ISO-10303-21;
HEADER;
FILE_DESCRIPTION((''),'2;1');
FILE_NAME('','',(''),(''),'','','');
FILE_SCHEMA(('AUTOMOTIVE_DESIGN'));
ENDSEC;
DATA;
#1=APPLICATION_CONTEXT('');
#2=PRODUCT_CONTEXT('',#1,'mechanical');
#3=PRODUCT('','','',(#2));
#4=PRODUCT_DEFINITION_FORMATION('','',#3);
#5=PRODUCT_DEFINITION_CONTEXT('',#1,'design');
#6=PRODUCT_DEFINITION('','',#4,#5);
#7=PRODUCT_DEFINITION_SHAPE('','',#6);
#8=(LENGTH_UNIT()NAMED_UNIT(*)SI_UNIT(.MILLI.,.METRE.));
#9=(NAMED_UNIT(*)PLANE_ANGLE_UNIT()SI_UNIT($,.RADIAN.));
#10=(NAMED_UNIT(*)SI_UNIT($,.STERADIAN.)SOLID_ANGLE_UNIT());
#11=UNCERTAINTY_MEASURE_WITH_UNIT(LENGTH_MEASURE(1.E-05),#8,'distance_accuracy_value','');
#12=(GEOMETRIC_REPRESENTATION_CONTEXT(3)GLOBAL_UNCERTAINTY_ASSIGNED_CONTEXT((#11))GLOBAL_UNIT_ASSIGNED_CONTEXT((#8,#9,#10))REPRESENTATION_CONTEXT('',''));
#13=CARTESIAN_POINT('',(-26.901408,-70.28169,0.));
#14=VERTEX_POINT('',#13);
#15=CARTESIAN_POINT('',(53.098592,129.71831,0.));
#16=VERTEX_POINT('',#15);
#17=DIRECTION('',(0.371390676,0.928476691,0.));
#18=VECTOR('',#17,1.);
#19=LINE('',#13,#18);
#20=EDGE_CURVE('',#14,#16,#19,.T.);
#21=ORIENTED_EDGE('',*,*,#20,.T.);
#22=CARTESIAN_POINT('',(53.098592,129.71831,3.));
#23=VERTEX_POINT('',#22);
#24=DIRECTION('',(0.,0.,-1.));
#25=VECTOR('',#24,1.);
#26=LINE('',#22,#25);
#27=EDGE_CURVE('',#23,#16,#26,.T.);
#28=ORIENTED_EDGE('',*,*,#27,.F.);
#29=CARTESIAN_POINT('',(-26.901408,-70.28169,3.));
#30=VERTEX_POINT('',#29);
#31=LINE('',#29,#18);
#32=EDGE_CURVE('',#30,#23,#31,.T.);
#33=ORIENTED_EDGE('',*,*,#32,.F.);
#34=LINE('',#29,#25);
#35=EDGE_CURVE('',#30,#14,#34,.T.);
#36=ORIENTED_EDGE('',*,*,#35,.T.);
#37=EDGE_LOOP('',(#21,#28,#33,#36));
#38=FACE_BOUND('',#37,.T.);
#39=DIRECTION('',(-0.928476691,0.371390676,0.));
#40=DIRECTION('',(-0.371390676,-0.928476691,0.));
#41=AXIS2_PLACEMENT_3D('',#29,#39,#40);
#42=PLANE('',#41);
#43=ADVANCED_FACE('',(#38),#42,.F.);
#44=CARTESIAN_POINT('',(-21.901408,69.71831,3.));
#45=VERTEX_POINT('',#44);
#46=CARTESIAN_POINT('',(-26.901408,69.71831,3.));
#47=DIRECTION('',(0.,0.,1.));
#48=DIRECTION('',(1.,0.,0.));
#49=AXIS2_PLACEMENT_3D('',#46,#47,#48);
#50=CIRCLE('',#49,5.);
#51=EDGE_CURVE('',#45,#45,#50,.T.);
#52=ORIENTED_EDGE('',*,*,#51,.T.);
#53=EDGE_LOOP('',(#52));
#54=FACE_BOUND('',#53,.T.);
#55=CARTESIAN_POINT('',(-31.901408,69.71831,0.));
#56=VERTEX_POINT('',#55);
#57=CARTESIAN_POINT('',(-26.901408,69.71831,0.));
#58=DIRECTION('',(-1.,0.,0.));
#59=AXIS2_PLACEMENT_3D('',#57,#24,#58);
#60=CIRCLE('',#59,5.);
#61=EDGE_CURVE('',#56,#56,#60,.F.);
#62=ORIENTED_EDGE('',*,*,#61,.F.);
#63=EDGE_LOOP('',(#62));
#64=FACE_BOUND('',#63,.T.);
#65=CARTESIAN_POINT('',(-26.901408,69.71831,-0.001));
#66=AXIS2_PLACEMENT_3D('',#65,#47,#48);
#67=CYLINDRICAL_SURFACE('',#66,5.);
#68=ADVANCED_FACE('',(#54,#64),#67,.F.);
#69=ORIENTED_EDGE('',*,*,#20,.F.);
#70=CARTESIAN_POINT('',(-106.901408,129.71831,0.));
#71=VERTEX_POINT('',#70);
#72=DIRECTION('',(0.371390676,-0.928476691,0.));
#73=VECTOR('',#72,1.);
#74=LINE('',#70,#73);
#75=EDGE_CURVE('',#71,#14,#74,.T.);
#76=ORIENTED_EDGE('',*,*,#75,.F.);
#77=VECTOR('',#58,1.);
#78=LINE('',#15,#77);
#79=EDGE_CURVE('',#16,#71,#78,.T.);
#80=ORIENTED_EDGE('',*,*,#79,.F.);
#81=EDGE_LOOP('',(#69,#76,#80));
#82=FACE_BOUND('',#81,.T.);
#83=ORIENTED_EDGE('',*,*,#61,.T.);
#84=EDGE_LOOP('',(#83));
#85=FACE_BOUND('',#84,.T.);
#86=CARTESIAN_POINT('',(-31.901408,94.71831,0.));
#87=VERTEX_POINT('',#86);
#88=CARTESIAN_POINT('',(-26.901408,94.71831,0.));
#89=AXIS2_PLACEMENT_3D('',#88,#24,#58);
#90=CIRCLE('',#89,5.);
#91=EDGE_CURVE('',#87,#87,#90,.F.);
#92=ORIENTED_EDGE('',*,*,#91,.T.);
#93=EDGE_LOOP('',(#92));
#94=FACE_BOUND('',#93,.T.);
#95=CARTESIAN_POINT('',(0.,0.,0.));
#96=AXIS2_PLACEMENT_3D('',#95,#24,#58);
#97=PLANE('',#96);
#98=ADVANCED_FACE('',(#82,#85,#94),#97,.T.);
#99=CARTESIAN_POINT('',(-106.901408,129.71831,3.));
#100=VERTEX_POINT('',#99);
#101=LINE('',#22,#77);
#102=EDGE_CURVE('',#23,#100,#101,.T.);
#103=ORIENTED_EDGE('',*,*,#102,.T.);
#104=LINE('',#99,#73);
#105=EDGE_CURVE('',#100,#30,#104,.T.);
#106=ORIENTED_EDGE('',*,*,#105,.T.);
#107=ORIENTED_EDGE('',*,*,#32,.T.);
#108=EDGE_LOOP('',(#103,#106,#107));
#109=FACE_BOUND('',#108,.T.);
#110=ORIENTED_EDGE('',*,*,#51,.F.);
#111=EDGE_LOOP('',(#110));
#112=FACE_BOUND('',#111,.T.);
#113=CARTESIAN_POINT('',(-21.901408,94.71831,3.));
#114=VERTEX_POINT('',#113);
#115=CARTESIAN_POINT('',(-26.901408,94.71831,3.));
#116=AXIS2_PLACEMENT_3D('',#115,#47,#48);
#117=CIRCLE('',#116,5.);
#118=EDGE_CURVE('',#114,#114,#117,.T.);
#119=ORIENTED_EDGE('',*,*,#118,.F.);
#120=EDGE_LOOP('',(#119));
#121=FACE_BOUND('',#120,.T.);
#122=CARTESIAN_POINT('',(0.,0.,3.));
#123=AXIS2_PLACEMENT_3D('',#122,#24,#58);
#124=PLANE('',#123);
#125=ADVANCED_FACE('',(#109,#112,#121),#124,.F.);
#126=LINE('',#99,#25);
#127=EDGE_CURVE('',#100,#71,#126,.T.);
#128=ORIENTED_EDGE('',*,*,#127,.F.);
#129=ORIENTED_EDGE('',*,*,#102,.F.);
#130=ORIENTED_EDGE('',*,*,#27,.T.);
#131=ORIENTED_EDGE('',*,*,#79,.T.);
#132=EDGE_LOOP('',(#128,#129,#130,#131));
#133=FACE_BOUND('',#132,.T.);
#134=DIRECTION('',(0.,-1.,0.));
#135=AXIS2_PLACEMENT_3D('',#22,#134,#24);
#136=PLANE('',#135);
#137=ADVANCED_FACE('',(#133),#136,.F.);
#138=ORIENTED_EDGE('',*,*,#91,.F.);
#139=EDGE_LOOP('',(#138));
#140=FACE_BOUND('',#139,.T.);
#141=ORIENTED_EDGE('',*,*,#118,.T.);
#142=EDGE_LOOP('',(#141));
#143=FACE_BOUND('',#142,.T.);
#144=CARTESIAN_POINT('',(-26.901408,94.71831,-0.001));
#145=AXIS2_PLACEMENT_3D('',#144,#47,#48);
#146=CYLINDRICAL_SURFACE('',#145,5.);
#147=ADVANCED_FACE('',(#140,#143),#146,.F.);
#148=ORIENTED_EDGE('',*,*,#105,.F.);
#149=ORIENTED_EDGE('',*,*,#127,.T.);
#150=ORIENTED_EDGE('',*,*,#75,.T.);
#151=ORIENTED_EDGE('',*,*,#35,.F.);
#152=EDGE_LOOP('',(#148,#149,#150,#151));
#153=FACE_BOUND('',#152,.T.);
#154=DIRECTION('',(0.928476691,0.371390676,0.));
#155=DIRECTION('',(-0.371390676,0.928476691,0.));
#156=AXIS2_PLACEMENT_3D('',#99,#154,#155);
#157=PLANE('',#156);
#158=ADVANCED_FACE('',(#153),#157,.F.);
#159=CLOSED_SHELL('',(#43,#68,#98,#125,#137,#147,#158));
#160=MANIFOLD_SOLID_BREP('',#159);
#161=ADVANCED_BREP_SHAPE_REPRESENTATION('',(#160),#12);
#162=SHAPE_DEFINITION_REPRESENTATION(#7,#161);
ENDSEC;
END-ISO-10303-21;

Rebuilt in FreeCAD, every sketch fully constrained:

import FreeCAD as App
import Part
import Sketcher
from FreeCAD import Vector


def add_polygon(sketch, points):
    """Adds a closed chain of lines whose ends are joined by coincident constraints."""
    first, n = sketch.GeometryCount, len(points)
    for a, b in zip(points, points[1:] + points[:1]):
        sketch.addGeometry(Part.LineSegment(App.Vector(*a, 0), App.Vector(*b, 0)), False)
    for i in range(n):
        sketch.addConstraint(Sketcher.Constraint("Coincident", first + i, 2, first + (i + 1) % n, 1))

doc = App.newDocument("Part")
body = doc.addObject("PartDesign::Body", "Body")

# Sketch on XY plane
sketch1 = doc.addObject("Sketcher::SketchObject", "Sketch")
body.addObject(sketch1)
sketch1.AttachmentSupport = (doc.XY_Plane, [""])
sketch1.MapMode = "FlatFace"
add_polygon(sketch1, [(-27, -70), (53, 130), (-107, 130)])  # lines 0-2
sketch1.addConstraint([
    Sketcher.Constraint("Horizontal", 1),
    Sketcher.Constraint("Equal", 0, 2),
    Sketcher.Constraint("DistanceX", 1, 2, 1, 1, 160.0),
    Sketcher.Constraint("DistanceY", 2, 2, 0, 2, 200.0),
    Sketcher.Constraint("DistanceX", -1, 1, 0, 2, 53.098592),
    Sketcher.Constraint("DistanceY", -1, 1, 0, 2, 129.71831),
])
pad1 = doc.addObject("PartDesign::Pad", "Pad")
body.addObject(pad1)
pad1.Profile = sketch1
pad1.Length = 3

# Sketch on XY plane
sketch2 = doc.addObject("Sketcher::SketchObject", "Sketch001")
body.addObject(sketch2)
sketch2.AttachmentSupport = (doc.XY_Plane, [""])
sketch2.MapMode = "FlatFace"
sketch2.AttachmentOffset = App.Placement(Vector(0, 0, 3), App.Rotation())
sketch2.addGeometry(Part.Circle(Vector(-27, 95, 0), Vector(0, 0, 1), 5), False)
sketch2.addConstraint([
    Sketcher.Constraint("Diameter", 0, 10.0),
    Sketcher.Constraint("DistanceX", 0, 3, -1, 1, 26.901408),
    Sketcher.Constraint("DistanceY", -1, 1, 0, 3, 94.71831),
])
pocket1 = doc.addObject("PartDesign::Pocket", "Pocket")
body.addObject(pocket1)
pocket1.Profile = sketch2
pocket1.Type = "UpToFirst"

# Sketch on XY plane
sketch3 = doc.addObject("Sketcher::SketchObject", "Sketch002")
body.addObject(sketch3)
sketch3.AttachmentSupport = (doc.XY_Plane, [""])
sketch3.MapMode = "FlatFace"
sketch3.AttachmentOffset = App.Placement(Vector(0, 0, 3), App.Rotation())
sketch3.addGeometry(Part.Circle(Vector(-27, 70, 0), Vector(0, 0, 1), 5), False)
sketch3.addConstraint([
    Sketcher.Constraint("Diameter", 0, 10.0),
    Sketcher.Constraint("DistanceX", 0, 3, -1, 1, 26.901408),
    Sketcher.Constraint("DistanceY", -1, 1, 0, 3, 69.71831),
])
pocket2 = doc.addObject("PartDesign::Pocket", "Pocket001")
body.addObject(pocket2)
pocket2.Profile = sketch3
pocket2.Type = "UpToFirst"

doc.recompute()
